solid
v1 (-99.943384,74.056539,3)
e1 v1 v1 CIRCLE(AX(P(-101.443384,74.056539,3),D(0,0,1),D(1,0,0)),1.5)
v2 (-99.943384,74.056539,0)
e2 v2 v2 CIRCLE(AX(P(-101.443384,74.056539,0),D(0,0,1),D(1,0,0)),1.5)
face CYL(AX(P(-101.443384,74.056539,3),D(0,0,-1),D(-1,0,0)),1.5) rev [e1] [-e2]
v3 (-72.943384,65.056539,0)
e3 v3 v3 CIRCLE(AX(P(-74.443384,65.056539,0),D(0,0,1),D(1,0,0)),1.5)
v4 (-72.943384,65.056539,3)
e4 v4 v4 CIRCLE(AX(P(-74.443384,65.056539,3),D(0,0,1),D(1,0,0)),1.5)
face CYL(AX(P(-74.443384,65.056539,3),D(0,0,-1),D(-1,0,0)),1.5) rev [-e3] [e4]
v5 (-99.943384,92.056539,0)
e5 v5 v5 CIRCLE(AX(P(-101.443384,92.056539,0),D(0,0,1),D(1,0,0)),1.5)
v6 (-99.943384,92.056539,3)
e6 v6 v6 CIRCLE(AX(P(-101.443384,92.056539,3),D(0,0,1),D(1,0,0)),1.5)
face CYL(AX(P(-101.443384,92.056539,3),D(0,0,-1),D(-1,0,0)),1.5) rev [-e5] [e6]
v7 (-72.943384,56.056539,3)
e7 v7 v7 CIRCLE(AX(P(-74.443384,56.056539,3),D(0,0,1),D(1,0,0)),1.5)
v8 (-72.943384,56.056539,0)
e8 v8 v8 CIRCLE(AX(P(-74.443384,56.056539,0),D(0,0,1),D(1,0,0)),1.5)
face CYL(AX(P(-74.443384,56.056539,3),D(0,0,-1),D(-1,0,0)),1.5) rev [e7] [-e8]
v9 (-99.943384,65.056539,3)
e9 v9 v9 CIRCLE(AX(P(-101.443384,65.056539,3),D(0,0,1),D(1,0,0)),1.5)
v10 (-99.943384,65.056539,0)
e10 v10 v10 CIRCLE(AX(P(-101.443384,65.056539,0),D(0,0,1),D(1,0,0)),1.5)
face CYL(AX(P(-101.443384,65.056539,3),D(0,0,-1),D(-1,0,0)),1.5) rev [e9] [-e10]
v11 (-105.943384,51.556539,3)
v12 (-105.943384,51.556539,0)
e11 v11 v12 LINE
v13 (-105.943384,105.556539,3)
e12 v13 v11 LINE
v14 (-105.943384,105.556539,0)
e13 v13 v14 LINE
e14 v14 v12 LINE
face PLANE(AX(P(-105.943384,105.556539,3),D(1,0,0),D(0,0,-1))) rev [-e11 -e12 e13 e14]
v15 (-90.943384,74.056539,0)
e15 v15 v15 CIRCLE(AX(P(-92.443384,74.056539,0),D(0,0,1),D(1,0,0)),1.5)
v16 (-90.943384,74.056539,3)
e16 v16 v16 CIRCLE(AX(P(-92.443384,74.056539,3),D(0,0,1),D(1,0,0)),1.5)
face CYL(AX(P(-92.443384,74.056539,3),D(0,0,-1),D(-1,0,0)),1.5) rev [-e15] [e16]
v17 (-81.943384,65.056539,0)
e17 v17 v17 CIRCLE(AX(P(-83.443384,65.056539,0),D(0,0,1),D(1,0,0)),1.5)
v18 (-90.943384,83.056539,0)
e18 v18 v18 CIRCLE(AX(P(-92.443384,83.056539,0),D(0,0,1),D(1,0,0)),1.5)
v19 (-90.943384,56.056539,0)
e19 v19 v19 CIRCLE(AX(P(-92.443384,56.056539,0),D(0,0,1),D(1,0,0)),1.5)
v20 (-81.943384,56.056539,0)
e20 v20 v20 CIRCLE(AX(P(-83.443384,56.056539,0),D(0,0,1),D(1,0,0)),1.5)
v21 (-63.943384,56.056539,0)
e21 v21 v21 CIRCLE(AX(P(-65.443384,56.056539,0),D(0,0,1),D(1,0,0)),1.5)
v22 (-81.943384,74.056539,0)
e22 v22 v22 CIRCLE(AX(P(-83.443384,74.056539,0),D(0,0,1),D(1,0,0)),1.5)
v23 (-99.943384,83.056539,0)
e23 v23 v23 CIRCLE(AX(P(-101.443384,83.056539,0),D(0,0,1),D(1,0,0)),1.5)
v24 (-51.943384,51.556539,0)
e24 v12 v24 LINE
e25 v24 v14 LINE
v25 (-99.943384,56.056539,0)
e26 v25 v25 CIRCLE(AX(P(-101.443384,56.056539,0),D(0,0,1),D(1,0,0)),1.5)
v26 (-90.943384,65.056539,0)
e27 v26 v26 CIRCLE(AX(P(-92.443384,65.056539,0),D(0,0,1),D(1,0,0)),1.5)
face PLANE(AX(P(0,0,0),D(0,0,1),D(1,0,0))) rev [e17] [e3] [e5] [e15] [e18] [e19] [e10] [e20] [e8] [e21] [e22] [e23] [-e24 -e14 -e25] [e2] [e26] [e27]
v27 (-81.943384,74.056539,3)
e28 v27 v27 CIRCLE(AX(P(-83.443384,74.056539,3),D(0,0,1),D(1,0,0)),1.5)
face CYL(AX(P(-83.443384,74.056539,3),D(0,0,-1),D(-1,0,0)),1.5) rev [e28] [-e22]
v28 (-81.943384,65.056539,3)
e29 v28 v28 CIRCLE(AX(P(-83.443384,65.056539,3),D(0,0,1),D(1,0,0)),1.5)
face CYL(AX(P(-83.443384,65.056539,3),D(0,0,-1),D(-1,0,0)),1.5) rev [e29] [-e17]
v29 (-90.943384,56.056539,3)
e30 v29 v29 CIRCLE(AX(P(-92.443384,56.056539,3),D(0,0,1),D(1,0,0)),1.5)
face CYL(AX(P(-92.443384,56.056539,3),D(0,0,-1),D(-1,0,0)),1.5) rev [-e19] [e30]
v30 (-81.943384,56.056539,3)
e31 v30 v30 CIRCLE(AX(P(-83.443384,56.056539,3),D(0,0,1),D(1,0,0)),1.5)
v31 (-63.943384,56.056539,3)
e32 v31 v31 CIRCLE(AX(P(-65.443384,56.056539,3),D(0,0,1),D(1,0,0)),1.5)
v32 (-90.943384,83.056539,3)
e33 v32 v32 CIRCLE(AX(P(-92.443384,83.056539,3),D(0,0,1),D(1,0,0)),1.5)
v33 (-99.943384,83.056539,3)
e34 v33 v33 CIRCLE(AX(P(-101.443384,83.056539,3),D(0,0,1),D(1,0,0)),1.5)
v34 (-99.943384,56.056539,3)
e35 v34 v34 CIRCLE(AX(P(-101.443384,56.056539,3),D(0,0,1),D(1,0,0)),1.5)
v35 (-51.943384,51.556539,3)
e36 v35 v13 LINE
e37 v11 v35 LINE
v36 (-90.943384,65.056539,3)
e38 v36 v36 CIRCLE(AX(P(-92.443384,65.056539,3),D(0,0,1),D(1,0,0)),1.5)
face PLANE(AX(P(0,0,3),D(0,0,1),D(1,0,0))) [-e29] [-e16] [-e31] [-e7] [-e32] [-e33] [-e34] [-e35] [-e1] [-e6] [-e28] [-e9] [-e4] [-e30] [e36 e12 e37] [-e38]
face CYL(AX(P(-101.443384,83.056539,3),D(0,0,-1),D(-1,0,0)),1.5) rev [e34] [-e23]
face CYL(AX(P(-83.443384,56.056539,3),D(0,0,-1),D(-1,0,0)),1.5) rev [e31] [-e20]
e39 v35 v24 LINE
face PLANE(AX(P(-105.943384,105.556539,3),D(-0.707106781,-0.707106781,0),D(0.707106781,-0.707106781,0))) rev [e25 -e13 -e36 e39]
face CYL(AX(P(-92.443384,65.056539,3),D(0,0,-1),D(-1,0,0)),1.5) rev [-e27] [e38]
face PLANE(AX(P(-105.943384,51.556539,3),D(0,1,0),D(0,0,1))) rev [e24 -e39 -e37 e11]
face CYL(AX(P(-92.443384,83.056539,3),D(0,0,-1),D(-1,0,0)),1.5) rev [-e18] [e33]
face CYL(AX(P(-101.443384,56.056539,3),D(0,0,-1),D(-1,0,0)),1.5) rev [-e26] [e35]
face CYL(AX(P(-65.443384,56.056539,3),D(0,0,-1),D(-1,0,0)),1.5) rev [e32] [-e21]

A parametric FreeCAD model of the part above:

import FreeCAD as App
import Part
import Sketcher
from FreeCAD import Vector
Q = App.Units.Quantity

doc = App.newDocument("Part")
body = doc.addObject("PartDesign::Body", "Body")

sketch1 = body.newObject("Sketcher::SketchObject", "Sketch")
sketch1.AttachmentSupport = (doc.getObject("XY_Plane"), [""])
sketch1.MapMode = "FlatFace"
sketch1.addGeometry([
    Part.LineSegment(Vector(-105.943384, 105.556539, 0), Vector(-105.943384, 51.556539, 0)),
    Part.LineSegment(Vector(-105.943384, 51.556539, 0), Vector(-51.943384, 51.556539, 0)),
    Part.LineSegment(Vector(-51.943384, 51.556539, 0), Vector(-105.943384, 105.556539, 0)),
    Part.Circle(Vector(-101.443384, 56.056539, 0), Vector(0, 0, 1), 1.5),
    Part.Circle(Vector(-92.443384, 56.056539, 0), Vector(0, 0, 1), 1.5),
    Part.Circle(Vector(-101.443384, 65.056539, 0), Vector(0, 0, 1), 1.5),
    Part.Circle(Vector(-101.443384, 74.056539, 0), Vector(0, 0, 1), 1.5),
    Part.Circle(Vector(-92.443384, 65.056539, 0), Vector(0, 0, 1), 1.5),
    Part.Circle(Vector(-92.443384, 74.056539, 0), Vector(0, 0, 1), 1.5),
    Part.Circle(Vector(-83.443384, 56.056539, 0), Vector(0, 0, 1), 1.5),
    Part.Circle(Vector(-74.443384, 56.056539, 0), Vector(0, 0, 1), 1.5),
    Part.Circle(Vector(-65.443384, 56.056539, 0), Vector(0, 0, 1), 1.5),
    Part.Circle(Vector(-83.443384, 65.056539, 0), Vector(0, 0, 1), 1.5),
    Part.Circle(Vector(-74.443384, 65.056539, 0), Vector(0, 0, 1), 1.5),
    Part.Circle(Vector(-83.443384, 74.056539, 0), Vector(0, 0, 1), 1.5),
    Part.Circle(Vector(-101.443384, 83.056539, 0), Vector(0, 0, 1), 1.5),
    Part.Circle(Vector(-92.443384, 83.056539, 0), Vector(0, 0, 1), 1.5),
    Part.Circle(Vector(-101.443384, 92.056539, 0), Vector(0, 0, 1), 1.5),
], False)
sketch1.addConstraint([
    Sketcher.Constraint("Coincident", 0, 2, 1, 1),
    Sketcher.Constraint("Coincident", 1, 2, 2, 1),
    Sketcher.Constraint("Coincident", 2, 2, 0, 1),
    Sketcher.Constraint("Vertical", 0),
    Sketcher.Constraint("Horizontal", 1),
    Sketcher.Constraint("Equal", 3, 4),
    Sketcher.Constraint("Equal", 4, 5),
    Sketcher.Constraint("Equal", 5, 6),
    Sketcher.Constraint("Equal", 6, 7),
    Sketcher.Constraint("Equal", 7, 8),
    Sketcher.Constraint("Equal", 8, 9),
    Sketcher.Constraint("Equal", 9, 10),
    Sketcher.Constraint("Equal", 10, 11),
    Sketcher.Constraint("Equal", 11, 12),
    Sketcher.Constraint("Equal", 12, 13),
    Sketcher.Constraint("Equal", 13, 14),
    Sketcher.Constraint("Equal", 14, 15),
    Sketcher.Constraint("Equal", 15, 16),
    Sketcher.Constraint("Equal", 16, 17),
    Sketcher.Constraint("Horizontal", 3, 3, 4, 3),
    Sketcher.Constraint("Horizontal", 5, 3, 7, 3),
    Sketcher.Constraint("Horizontal", 6, 3, 8, 3),
    Sketcher.Constraint("Horizontal", 4, 3, 9, 3),
    Sketcher.Constraint("Horizontal", 9, 3, 10, 3),
    Sketcher.Constraint("Horizontal", 10, 3, 11, 3),
    Sketcher.Constraint("Horizontal", 7, 3, 12, 3),
    Sketcher.Constraint("Horizontal", 12, 3, 13, 3),
    Sketcher.Constraint("Horizontal", 8, 3, 14, 3),
    Sketcher.Constraint("Horizontal", 15, 3, 16, 3),
    Sketcher.Constraint("Vertical", 3, 3, 5, 3),
    Sketcher.Constraint("Vertical", 5, 3, 6, 3),
    Sketcher.Constraint("Vertical", 4, 3, 7, 3),
    Sketcher.Constraint("Vertical", 7, 3, 8, 3),
    Sketcher.Constraint("Vertical", 9, 3, 12, 3),
    Sketcher.Constraint("Vertical", 10, 3, 13, 3),
    Sketcher.Constraint("Vertical", 12, 3, 14, 3),
    Sketcher.Constraint("Vertical", 6, 3, 15, 3),
    Sketcher.Constraint("Vertical", 8, 3, 16, 3),
    Sketcher.Constraint("Vertical", 15, 3, 17, 3),
    Sketcher.Constraint("Equal", 1, 0),
    Sketcher.Constraint("Diameter", 3, Q("3 mm")),
    Sketcher.Constraint("DistanceX", 1, 1, 1, 2, Q("54 mm")),
    Sketcher.Constraint("DistanceX", 3, 3, 4, 3, Q("9 mm")),
    Sketcher.Constraint("DistanceY", 3, 3, 5, 3, Q("9 mm")),
    Sketcher.Constraint("DistanceY", 5, 3, 6, 3, Q("9 mm")),
    Sketcher.Constraint("DistanceX", 4, 3, 9, 3, Q("9 mm")),
    Sketcher.Constraint("DistanceX", 9, 3, 10, 3, Q("9 mm")),
    Sketcher.Constraint("DistanceX", 10, 3, 11, 3, Q("9 mm")),
    Sketcher.Constraint("DistanceY", 6, 3, 15, 3, Q("9 mm")),
    Sketcher.Constraint("DistanceY", 15, 3, 17, 3, Q("9 mm")),
    Sketcher.Constraint("DistanceX", 0, 2, 3, 3, Q("4.5 mm")),
    Sketcher.Constraint("DistanceY", 0, 2, 3, 3, Q("4.5 mm")),
    Sketcher.Constraint("DistanceY", -1, 1, 3, 3, Q("56.056539 mm")),
    Sketcher.Constraint("DistanceX", 3, 3, -1, 1, Q("101.443384 mm")),
])
pad1 = body.newObject("PartDesign::Pad", "Pad")
pad1.Profile = sketch1
pad1.Length = 3

doc.recompute()
